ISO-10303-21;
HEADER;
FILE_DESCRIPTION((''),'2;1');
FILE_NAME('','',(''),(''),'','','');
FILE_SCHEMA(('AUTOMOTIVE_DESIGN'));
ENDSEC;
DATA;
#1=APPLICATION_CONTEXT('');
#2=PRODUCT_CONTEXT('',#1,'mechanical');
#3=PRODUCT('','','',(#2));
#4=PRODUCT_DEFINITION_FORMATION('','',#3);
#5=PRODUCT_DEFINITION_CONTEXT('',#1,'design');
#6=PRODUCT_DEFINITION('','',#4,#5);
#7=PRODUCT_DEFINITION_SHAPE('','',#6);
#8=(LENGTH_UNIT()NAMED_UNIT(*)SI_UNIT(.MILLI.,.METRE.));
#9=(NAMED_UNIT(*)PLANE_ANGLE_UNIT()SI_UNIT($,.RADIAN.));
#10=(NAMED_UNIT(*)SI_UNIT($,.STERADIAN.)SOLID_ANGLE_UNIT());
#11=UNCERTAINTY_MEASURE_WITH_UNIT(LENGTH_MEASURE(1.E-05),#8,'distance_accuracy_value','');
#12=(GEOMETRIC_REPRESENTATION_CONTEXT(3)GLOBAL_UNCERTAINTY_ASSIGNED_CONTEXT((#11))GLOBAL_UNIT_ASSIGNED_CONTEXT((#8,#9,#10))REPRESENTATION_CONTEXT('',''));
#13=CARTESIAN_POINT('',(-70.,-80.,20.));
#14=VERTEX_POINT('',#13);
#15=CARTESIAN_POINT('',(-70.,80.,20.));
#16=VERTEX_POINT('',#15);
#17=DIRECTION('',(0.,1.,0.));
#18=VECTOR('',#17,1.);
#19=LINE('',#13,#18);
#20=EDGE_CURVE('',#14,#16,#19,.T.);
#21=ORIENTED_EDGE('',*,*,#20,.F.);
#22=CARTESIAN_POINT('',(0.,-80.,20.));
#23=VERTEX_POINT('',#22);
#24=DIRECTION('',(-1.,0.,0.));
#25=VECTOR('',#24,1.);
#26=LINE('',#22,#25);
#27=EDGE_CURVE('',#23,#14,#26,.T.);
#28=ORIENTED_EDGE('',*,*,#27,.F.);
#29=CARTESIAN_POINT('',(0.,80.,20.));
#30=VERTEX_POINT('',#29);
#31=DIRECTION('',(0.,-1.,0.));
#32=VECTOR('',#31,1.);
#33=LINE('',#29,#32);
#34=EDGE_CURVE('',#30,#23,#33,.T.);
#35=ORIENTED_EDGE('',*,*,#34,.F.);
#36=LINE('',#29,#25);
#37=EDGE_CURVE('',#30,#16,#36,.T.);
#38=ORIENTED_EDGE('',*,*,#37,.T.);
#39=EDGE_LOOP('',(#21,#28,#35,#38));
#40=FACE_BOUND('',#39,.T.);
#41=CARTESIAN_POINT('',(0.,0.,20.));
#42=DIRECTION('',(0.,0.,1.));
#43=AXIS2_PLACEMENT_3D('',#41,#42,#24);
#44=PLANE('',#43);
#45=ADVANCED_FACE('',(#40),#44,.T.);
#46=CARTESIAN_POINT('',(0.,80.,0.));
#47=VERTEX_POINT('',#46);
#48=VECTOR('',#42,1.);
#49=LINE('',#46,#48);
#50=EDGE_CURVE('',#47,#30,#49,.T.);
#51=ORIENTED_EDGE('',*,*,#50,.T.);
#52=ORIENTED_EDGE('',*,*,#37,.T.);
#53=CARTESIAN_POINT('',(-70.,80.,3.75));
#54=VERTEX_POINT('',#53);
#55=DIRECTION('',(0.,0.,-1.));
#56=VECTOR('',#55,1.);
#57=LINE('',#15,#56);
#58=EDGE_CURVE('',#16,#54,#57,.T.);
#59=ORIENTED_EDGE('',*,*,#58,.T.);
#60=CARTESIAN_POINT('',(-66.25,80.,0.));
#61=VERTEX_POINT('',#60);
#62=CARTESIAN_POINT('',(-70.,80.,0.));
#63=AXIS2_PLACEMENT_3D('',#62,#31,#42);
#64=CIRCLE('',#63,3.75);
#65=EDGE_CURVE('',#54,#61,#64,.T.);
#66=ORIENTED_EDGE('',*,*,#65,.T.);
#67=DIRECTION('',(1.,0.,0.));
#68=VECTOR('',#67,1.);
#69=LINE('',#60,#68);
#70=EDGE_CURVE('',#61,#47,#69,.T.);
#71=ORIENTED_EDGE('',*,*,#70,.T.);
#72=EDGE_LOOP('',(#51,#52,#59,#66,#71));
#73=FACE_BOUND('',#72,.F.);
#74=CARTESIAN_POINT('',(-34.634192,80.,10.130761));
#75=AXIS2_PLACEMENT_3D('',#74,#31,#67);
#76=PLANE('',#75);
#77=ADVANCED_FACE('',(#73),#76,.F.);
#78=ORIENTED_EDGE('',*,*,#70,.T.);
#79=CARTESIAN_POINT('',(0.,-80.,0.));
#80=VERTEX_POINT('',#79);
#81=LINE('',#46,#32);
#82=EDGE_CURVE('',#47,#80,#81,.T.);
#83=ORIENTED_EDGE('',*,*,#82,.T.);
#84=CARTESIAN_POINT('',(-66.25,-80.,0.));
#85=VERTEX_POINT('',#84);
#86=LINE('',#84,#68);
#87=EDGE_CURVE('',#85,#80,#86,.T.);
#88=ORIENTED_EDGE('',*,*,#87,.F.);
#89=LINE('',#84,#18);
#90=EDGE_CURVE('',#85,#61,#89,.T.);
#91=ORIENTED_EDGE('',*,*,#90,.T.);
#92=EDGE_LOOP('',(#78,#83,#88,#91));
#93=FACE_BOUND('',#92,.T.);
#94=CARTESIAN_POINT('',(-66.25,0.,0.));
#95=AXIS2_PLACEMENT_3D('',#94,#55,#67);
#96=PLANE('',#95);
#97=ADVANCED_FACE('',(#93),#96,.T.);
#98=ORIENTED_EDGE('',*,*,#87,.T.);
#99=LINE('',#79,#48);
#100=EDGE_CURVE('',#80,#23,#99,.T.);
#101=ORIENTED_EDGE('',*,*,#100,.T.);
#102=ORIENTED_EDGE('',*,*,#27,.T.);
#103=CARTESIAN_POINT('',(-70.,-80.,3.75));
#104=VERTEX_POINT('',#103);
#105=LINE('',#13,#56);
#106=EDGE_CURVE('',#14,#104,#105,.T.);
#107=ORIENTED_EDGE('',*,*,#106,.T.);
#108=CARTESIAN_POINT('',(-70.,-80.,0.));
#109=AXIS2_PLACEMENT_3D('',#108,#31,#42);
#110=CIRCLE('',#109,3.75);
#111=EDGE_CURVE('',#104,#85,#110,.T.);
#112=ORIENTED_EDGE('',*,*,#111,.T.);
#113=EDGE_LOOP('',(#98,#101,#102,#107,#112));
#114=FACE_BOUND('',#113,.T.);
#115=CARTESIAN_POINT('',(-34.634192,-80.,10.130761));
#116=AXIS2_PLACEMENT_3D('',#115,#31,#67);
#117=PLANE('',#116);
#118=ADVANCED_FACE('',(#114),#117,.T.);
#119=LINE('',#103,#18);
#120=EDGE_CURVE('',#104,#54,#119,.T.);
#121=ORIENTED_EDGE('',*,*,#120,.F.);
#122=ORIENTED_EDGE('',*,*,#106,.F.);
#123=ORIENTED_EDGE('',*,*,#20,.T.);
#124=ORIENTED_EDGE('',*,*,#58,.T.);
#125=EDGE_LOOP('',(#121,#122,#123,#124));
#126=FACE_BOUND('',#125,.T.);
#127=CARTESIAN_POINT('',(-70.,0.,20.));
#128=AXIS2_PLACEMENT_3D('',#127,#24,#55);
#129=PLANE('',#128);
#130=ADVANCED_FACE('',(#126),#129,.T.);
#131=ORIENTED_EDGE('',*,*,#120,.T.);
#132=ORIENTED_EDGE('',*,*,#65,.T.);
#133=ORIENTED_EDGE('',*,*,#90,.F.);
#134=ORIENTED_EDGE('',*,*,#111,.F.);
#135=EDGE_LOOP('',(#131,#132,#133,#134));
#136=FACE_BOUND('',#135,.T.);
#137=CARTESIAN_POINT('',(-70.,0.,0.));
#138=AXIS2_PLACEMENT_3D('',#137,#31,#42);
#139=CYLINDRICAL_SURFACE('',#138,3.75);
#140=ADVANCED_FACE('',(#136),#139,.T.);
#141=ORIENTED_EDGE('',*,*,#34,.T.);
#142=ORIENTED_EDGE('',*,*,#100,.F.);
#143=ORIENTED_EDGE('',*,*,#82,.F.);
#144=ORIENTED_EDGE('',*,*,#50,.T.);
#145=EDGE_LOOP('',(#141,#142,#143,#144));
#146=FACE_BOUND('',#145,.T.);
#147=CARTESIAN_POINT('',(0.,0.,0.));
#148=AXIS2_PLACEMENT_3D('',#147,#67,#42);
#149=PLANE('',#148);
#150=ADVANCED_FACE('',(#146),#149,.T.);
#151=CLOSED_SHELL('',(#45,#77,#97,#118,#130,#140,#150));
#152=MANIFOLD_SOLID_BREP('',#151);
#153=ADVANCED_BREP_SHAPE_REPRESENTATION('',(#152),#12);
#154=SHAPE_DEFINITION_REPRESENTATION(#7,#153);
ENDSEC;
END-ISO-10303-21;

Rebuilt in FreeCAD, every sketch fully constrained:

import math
import FreeCAD as App
import Part
import Sketcher

V = App.Vector

doc = App.newDocument("Part")
body = doc.addObject("PartDesign::Body", "Body")

# Sketch on XZ plane
sketch1 = doc.addObject("Sketcher::SketchObject", "Sketch")
body.addObject(sketch1)
sketch1.AttachmentSupport = (doc.XZ_Plane, [""])
sketch1.MapMode = "FlatFace"
sketch1.addGeometry([
    Part.LineSegment(V(-66.25, 0, 0), V(0, 0, 0)),  # 0
    Part.LineSegment(V(0, 0, 0), V(0, 20, 0)),  # 1
    Part.LineSegment(V(0, 20, 0), V(-70, 20, 0)),  # 2
    Part.LineSegment(V(-70, 20, 0), V(-70, 3.75, 0)),  # 3
    Part.ArcOfCircle(Part.Circle(V(-70, 0, 0), V(0, 0, 1), 3.75), math.radians(90), math.radians(360)),  # 4
], False)
sketch1.addConstraint([
    Sketcher.Constraint("Coincident", 0, 2, 1, 1),
    Sketcher.Constraint("Coincident", 1, 2, 2, 1),
    Sketcher.Constraint("Coincident", 2, 2, 3, 1),
    Sketcher.Constraint("Coincident", 3, 2, 4, 1),
    Sketcher.Constraint("Coincident", 4, 2, 0, 1),
    Sketcher.Constraint("Horizontal", 0),
    Sketcher.Constraint("Vertical", 1),
    Sketcher.Constraint("Horizontal", 2),
    Sketcher.Constraint("Vertical", 3),
    Sketcher.Constraint("Coincident", 0, 2, -1, 1),
    Sketcher.Constraint("PointOnObject", 4, 3, -1),
    Sketcher.Constraint("Vertical", 4, 3, 2, 2),
    Sketcher.Constraint("DistanceX", 2, 2, 2, 1, 70.0),
    Sketcher.Constraint("DistanceY", 1, 1, 1, 2, 20.0),
    Sketcher.Constraint("Radius", 4, 3.75),
])
pad1 = doc.addObject("PartDesign::Pad", "Pad")
body.addObject(pad1)
pad1.Profile = sketch1
pad1.Length = 160
pad1.Midplane = True

doc.recompute()
